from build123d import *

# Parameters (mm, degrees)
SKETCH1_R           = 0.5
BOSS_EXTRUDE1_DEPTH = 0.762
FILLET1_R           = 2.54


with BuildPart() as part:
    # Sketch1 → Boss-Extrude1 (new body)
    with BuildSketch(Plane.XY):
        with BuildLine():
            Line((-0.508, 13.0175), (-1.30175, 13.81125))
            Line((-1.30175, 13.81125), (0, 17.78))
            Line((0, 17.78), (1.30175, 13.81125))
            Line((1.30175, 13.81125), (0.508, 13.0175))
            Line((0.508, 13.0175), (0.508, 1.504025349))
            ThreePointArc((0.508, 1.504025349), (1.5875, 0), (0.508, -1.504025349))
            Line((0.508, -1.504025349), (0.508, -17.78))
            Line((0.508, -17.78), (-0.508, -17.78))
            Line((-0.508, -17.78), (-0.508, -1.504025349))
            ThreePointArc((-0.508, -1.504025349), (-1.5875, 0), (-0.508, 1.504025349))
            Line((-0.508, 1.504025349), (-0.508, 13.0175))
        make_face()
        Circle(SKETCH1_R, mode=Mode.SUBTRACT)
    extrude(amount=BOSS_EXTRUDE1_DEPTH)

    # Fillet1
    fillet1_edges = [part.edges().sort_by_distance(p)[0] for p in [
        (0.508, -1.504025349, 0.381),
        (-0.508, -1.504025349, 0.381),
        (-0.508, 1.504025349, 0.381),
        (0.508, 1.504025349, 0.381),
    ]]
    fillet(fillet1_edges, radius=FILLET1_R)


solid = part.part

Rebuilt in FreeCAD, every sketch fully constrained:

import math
import FreeCAD as App
import Part
import Sketcher
from FreeCAD import Vector
Q = App.Units.Quantity


def edges_at(feature, points):
    """Names of the edges that pass closest to the given points."""
    edges = feature.Shape.Edges
    near = lambda p: min(range(len(edges)), key=lambda i: edges[i].distToShape(Part.Vertex(*p))[0])
    return sorted({f"Edge{near(p) + 1}" for p in points})

doc = App.newDocument("Part")
body = doc.addObject("PartDesign::Body", "Body")

# Sketch on XY plane
sketch1 = doc.addObject("Sketcher::SketchObject", "Sketch")
body.addObject(sketch1)
sketch1.AttachmentSupport = (doc.XY_Plane, [""])
sketch1.MapMode = "FlatFace"
sketch1.addGeometry(Part.LineSegment(Vector(-1.3, 13.8, 0), Vector(-0.5, 13, 0)), False)
sketch1.addGeometry(Part.LineSegment(Vector(-0.5, 13, 0), Vector(-0.5, 1.5, 0)), False)
sketch1.addGeometry(Part.ArcOfCircle(Part.Circle(Vector(0, 0, 0), Vector(0, 0, 1), 1.6), math.radians(109), math.radians(251)), False)
sketch1.addGeometry(Part.LineSegment(Vector(-0.5, -1.5, 0), Vector(-0.5, -17.8, 0)), False)
sketch1.addGeometry(Part.LineSegment(Vector(-0.5, -17.8, 0), Vector(0.5, -17.8, 0)), False)
sketch1.addGeometry(Part.LineSegment(Vector(0.5, -17.8, 0), Vector(0.5, -1.5, 0)), False)
sketch1.addGeometry(Part.ArcOfCircle(Part.Circle(Vector(0, 0, 0), Vector(0, 0, 1), 1.6), math.radians(-71), math.radians(71)), False)
sketch1.addGeometry(Part.LineSegment(Vector(0.5, 1.5, 0), Vector(0.5, 13, 0)), False)
sketch1.addGeometry(Part.LineSegment(Vector(0.5, 13, 0), Vector(1.3, 13.8, 0)), False)
sketch1.addGeometry(Part.LineSegment(Vector(1.3, 13.8, 0), Vector(0, 17.8, 0)), False)
sketch1.addGeometry(Part.LineSegment(Vector(0, 17.8, 0), Vector(-1.3, 13.8, 0)), False)
sketch1.addGeometry(Part.Circle(Vector(0, 0, 0), Vector(0, 0, 1), 0.5), False)
sketch1.addConstraint(Sketcher.Constraint("Coincident", 0, 2, 1, 1))
sketch1.addConstraint(Sketcher.Constraint("Coincident", 1, 2, 2, 1))
sketch1.addConstraint(Sketcher.Constraint("Coincident", 2, 2, 3, 1))
sketch1.addConstraint(Sketcher.Constraint("Coincident", 3, 2, 4, 1))
sketch1.addConstraint(Sketcher.Constraint("Coincident", 4, 2, 5, 1))
sketch1.addConstraint(Sketcher.Constraint("Coincident", 5, 2, 6, 1))
sketch1.addConstraint(Sketcher.Constraint("Coincident", 6, 2, 7, 1))
sketch1.addConstraint(Sketcher.Constraint("Coincident", 7, 2, 8, 1))
sketch1.addConstraint(Sketcher.Constraint("Coincident", 8, 2, 9, 1))
sketch1.addConstraint(Sketcher.Constraint("Coincident", 9, 2, 10, 1))
sketch1.addConstraint(Sketcher.Constraint("Coincident", 10, 2, 0, 1))
sketch1.addConstraint(Sketcher.Constraint("Vertical", 1))
sketch1.addConstraint(Sketcher.Constraint("Vertical", 3))
sketch1.addConstraint(Sketcher.Constraint("Horizontal", 4))
sketch1.addConstraint(Sketcher.Constraint("Vertical", 5))
sketch1.addConstraint(Sketcher.Constraint("Vertical", 7))
sketch1.addConstraint(Sketcher.Constraint("Coincident", 2, 3, -1, 1))
sketch1.addConstraint(Sketcher.Constraint("Coincident", 6, 3, -1, 1))
sketch1.addConstraint(Sketcher.Constraint("Coincident", 11, 3, -1, 1))
sketch1.addConstraint(Sketcher.Constraint("Equal", 2, 6))
sketch1.addConstraint(Sketcher.Constraint("Symmetric", 0, 2, 7, 2, -2))
sketch1.addConstraint(Sketcher.Constraint("Symmetric", 8, 2, 10, 2, -2))
sketch1.addConstraint(Sketcher.Constraint("PointOnObject", 9, 2, -2))
sketch1.addConstraint(Sketcher.Constraint("Perpendicular", 0, 8))
sketch1.addConstraint(Sketcher.Constraint("Horizontal", 2, 2, 5, 2))
sketch1.addConstraint(Sketcher.Constraint("Vertical", 1, 2, 2, 2))
sketch1.addConstraint(Sketcher.Constraint("Radius", 2, Q("0.0625 in")))
sketch1.addConstraint(Sketcher.Constraint("DistanceX", 4, 1, 4, 2, Q("0.04 in")))
sketch1.addConstraint(Sketcher.Constraint("DistanceY", 3, 2, -1, 1, Q("0.7 in")))
sketch1.addConstraint(Sketcher.Constraint("DistanceY", -1, 1, 9, 2, Q("0.7 in")))
sketch1.addConstraint(Sketcher.Constraint("Diameter", 11, Q("1 mm")))
sketch1.addConstraint(Sketcher.Constraint("DistanceX", 7, 2, 8, 2, Q("0.03125 in")))
sketch1.addConstraint(Sketcher.Constraint("DistanceY", 8, 2, 9, 2, Q("0.15625 in")))
pad1 = doc.addObject("PartDesign::Pad", "Pad")
body.addObject(pad1)
pad1.Profile = sketch1
pad1.Length = Q("0.03 in")
doc.recompute()

fillet = doc.addObject("PartDesign::Fillet", "Fillet")
body.addObject(fillet)
fillet.Base = (pad1, edges_at(pad1, [
    (0.508, -1.504, 0.381),
    (-0.508, -1.504, 0.381),
    (-0.508, 1.504, 0.381),
    (0.508, 1.504, 0.381),
]))
fillet.Radius = Q("0.1 in")

doc.recompute()
